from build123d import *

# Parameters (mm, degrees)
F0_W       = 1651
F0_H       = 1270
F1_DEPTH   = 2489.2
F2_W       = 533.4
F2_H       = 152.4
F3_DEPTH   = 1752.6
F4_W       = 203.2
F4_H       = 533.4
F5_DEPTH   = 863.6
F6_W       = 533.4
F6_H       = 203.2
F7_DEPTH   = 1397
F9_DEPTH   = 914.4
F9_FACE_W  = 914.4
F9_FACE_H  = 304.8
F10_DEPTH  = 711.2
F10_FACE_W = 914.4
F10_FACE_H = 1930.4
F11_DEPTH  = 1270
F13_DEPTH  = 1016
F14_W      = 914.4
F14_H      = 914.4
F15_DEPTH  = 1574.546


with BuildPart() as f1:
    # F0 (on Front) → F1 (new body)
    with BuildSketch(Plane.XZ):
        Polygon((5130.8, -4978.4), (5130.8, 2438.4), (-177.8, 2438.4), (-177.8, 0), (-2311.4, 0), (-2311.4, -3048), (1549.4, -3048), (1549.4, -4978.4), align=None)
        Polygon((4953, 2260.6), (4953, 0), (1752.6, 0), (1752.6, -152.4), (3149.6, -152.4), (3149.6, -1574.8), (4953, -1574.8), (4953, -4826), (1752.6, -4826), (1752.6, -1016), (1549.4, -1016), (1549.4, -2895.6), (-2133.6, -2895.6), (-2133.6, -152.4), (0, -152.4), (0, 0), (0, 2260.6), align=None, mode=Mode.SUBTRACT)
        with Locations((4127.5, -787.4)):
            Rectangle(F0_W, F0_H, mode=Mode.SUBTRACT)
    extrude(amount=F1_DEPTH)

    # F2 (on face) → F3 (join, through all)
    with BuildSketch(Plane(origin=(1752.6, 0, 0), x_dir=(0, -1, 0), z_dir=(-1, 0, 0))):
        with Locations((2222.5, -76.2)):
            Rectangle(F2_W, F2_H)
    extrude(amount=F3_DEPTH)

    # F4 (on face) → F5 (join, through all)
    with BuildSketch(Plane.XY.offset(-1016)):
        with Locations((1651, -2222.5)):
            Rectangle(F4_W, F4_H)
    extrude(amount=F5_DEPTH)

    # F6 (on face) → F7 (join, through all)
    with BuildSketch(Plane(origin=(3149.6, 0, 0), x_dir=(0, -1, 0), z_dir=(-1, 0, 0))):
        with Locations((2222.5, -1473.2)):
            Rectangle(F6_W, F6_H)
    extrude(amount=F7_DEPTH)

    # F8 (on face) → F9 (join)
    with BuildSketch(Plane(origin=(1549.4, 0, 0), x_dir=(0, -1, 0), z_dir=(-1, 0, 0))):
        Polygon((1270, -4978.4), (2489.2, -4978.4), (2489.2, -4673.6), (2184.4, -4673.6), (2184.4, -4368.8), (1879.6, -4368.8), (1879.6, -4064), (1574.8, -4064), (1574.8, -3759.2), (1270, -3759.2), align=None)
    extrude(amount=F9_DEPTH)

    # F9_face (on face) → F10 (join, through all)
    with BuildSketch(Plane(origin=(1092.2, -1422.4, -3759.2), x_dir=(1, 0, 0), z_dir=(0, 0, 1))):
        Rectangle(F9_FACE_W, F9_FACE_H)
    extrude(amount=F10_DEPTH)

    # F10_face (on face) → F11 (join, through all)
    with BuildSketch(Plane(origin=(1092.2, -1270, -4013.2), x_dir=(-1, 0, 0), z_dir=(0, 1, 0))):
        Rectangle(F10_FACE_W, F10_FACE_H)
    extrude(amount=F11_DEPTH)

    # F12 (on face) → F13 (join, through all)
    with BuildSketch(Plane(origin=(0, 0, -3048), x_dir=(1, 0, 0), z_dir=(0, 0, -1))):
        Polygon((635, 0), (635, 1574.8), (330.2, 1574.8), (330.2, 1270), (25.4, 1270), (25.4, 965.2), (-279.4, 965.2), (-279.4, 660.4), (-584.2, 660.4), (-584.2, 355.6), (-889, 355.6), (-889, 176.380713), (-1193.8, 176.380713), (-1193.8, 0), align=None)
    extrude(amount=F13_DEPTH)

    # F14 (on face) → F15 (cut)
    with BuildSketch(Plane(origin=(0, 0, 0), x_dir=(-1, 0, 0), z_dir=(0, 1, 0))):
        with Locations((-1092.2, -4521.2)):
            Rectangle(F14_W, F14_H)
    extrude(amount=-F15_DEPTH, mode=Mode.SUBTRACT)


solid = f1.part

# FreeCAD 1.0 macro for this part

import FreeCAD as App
import Part
import Sketcher
Q = App.Units.Quantity


def add_polygon(sketch, points):
    """Adds a closed chain of lines whose ends are joined by coincident constraints."""
    first, n = sketch.GeometryCount, len(points)
    for a, b in zip(points, points[1:] + points[:1]):
        sketch.addGeometry(Part.LineSegment(App.Vector(*a, 0), App.Vector(*b, 0)), False)
    for i in range(n):
        sketch.addConstraint(Sketcher.Constraint("Coincident", first + i, 2, first + (i + 1) % n, 1))

doc = App.newDocument("Part")
params = doc.addObject("Spreadsheet::Sheet", "Params")
for row, (alias, value) in enumerate([
    ("sketch1_width", "209 in"),
    ("sketch1_width2", "84 in"),
    ("sketch1_width3", "152 in"),
    ("sketch1_width4", "195 in"),
    ("sketch1_width5", "126 in"),
    ("pad1_length", "98 in"),
    ("sketch2_width", "21 in"),
    ("sketch2_height", "6 in"),
    ("sketch3_width", "8 in"),
    ("sketch3_height", "21 in"),
    ("pad3_length", "34 in"),
    ("sketch4_width", "21 in"),
    ("sketch4_height", "8 in"),
    ("pad4_length", "55 in"),
    ("sketch5_width", "48 in"),
    ("pad5_length", "36 in"),
    ("sketch6_width", "36 in"),
    ("sketch6_height", "12 in"),
    ("pad6_length", "28 in"),
    ("sketch7_width", "36 in"),
    ("sketch7_height", "76 in"),
    ("pad7_length", "50 in"),
    ("sketch8_width", "12 in"),
    ("sketch8_height", "62 in"),
    ("pad8_length", "40 in"),
    ("sketch9_width", "36 in"),
    ("pocket1_length", "61.99 in"),
], start=1):
    params.set(f"A{row}", alias)
    params.set(f"B{row}", "=" + value)
    params.setAlias(f"B{row}", alias)

body = doc.addObject("PartDesign::Body", "Body")

# Sketch on XZ plane
sketch1 = doc.addObject("Sketcher::SketchObject", "Sketch")
body.addObject(sketch1)
sketch1.AttachmentSupport = (doc.XZ_Plane, [""])
sketch1.MapMode = "FlatFace"
add_polygon(sketch1, [(5131, -4978), (5131, 2438), (-178, 2438), (-178, 0), (-2311, 0), (-2311, -3048), (1549, -3048), (1549, -4978)])  # lines 0-7
add_polygon(sketch1, [(0, 2261), (4953, 2261), (4953, 0), (1753, 0), (1753, -152), (3150, -152), (3150, -1575), (4953, -1575), (4953, -4826), (1753, -4826), (1753, -1016), (1549, -1016), (1549, -2896), (-2134, -2896), (-2134, -152), (0, -152)])  # lines 8-23
add_polygon(sketch1, [(4953, -1422), (3302, -1422), (3302, -152), (4953, -152)])  # lines 24-27
sketch1.addConstraint([
    Sketcher.Constraint("Vertical", 0),
    Sketcher.Constraint("Horizontal", 1),
    Sketcher.Constraint("Vertical", 2),
    Sketcher.Constraint("Horizontal", 3),
    Sketcher.Constraint("Vertical", 4),
    Sketcher.Constraint("Horizontal", 5),
    Sketcher.Constraint("Vertical", 6),
    Sketcher.Constraint("Horizontal", 7),
    Sketcher.Constraint("Horizontal", 8),
    Sketcher.Constraint("Vertical", 9),
    Sketcher.Constraint("Horizontal", 10),
    Sketcher.Constraint("Vertical", 11),
    Sketcher.Constraint("Horizontal", 12),
    Sketcher.Constraint("Vertical", 13),
    Sketcher.Constraint("Horizontal", 14),
    Sketcher.Constraint("Vertical", 15),
    Sketcher.Constraint("Horizontal", 16),
    Sketcher.Constraint("Vertical", 17),
    Sketcher.Constraint("Horizontal", 18),
    Sketcher.Constraint("Vertical", 19),
    Sketcher.Constraint("Horizontal", 20),
    Sketcher.Constraint("Vertical", 21),
    Sketcher.Constraint("Horizontal", 22),
    Sketcher.Constraint("Vertical", 23),
    Sketcher.Constraint("Horizontal", 24),
    Sketcher.Constraint("Vertical", 25),
    Sketcher.Constraint("Horizontal", 26),
    Sketcher.Constraint("Vertical", 27),
    Sketcher.Constraint("PointOnObject", 2, 2, -1),
    Sketcher.Constraint("PointOnObject", 9, 2, -1),
    Sketcher.Constraint("PointOnObject", 22, 2, -2),
    Sketcher.Constraint("Horizontal", 12, 2, 21, 2),
    Sketcher.Constraint("Horizontal", 22, 2, 25, 2),
    Sketcher.Constraint("Vertical", 9, 2, 14, 2),
    Sketcher.Constraint("Vertical", 11, 2, 16, 2),
    Sketcher.Constraint("Vertical", 6, 2, 18, 2),
    Sketcher.Constraint("Vertical", 15, 2, 26, 2),
    Sketcher.Constraint("Equal", 3, 22),
    Sketcher.Constraint("DistanceX", 1, 2, 1, 1, Q("209 in")),
    Sketcher.Constraint("DistanceX", 3, 2, 3, 1, Q("84 in")),
    Sketcher.Constraint("DistanceX", 5, 1, 5, 2, Q("152 in")),
    Sketcher.Constraint("DistanceX", 8, 1, 8, 2, Q("195 in")),
    Sketcher.Constraint("DistanceX", 10, 2, 10, 1, Q("126 in")),
    Sketcher.Constraint("DistanceX", 12, 1, 12, 2, Q("55 in")),
    Sketcher.Constraint("DistanceX", 18, 2, 18, 1, Q("8 in")),
    Sketcher.Constraint("DistanceX", 24, 2, 24, 1, Q("65 in")),
    Sketcher.Constraint("DistanceY", 0, 1, 0, 2, Q("292 in")),
    Sketcher.Constraint("DistanceY", 2, 2, 2, 1, Q("96 in")),
    Sketcher.Constraint("DistanceY", 4, 2, 4, 1, Q("120 in")),
    Sketcher.Constraint("DistanceY", 9, 2, 9, 1, Q("89 in")),
    Sketcher.Constraint("DistanceY", 11, 2, 11, 1, Q("6 in")),
    Sketcher.Constraint("DistanceY", 13, 2, 13, 1, Q("56 in")),
    Sketcher.Constraint("DistanceY", 15, 2, 15, 1, Q("128 in")),
    Sketcher.Constraint("DistanceY", 17, 1, 17, 2, Q("150 in")),
    Sketcher.Constraint("DistanceY", 19, 2, 19, 1, Q("74 in")),
    Sketcher.Constraint("DistanceY", 25, 1, 25, 2, Q("50 in")),
])
sketch1.setExpression("Constraints[66]", "Params.sketch1_width")
sketch1.setExpression("Constraints[67]", "Params.sketch1_width2")
sketch1.setExpression("Constraints[68]", "Params.sketch1_width3")
sketch1.setExpression("Constraints[69]", "Params.sketch1_width4")
sketch1.setExpression("Constraints[70]", "Params.sketch1_width5")
pad1 = doc.addObject("PartDesign::Pad", "Pad")
body.addObject(pad1)
pad1.Profile = sketch1
pad1.setExpression("Length", "Params.pad1_length")

# Sketch on YZ plane
sketch2 = doc.addObject("Sketcher::SketchObject", "Sketch001")
body.addObject(sketch2)
sketch2.AttachmentSupport = (doc.YZ_Plane, [""])
sketch2.MapMode = "FlatFace"
sketch2.AttachmentOffset = App.Placement(App.Vector(0, 0, 69 * 25.4), App.Rotation())
add_polygon(sketch2, [(-1956, 0), (-1956, -152), (-2489, -152), (-2489, 0)])  # lines 0-3
sketch2.addConstraint([
    Sketcher.Constraint("Vertical", 0),
    Sketcher.Constraint("Horizontal", 1),
    Sketcher.Constraint("Vertical", 2),
    Sketcher.Constraint("Horizontal", 3),
    Sketcher.Constraint("PointOnObject", 2, 2, -1),
    Sketcher.Constraint("DistanceX", 1, 2, 1, 1, Q("21 in")),
    Sketcher.Constraint("DistanceY", 0, 2, 0, 1, Q("6 in")),
    Sketcher.Constraint("DistanceX", 0, 2, -1, 1, Q("77 in")),
])
sketch2.setExpression("Constraints[9]", "Params.sketch2_width")
sketch2.setExpression("Constraints[10]", "Params.sketch2_height")
pad2 = doc.addObject("PartDesign::Pad", "Pad001")
body.addObject(pad2)
pad2.Profile = sketch2
pad2.Type = "UpToLast"
pad2.Reversed = True

# Sketch on XY plane
sketch3 = doc.addObject("Sketcher::SketchObject", "Sketch002")
body.addObject(sketch3)
sketch3.AttachmentSupport = (doc.XY_Plane, [""])
sketch3.MapMode = "FlatFace"
sketch3.AttachmentOffset = App.Placement(App.Vector(0, 0, -40 * 25.4), App.Rotation())
add_polygon(sketch3, [(1549, -1956), (1549, -2489), (1753, -2489), (1753, -1956)])  # lines 0-3
sketch3.addConstraint([
    Sketcher.Constraint("Vertical", 0),
    Sketcher.Constraint("Horizontal", 1),
    Sketcher.Constraint("Vertical", 2),
    Sketcher.Constraint("Horizontal", 3),
    Sketcher.Constraint("DistanceX", 1, 1, 1, 2, Q("8 in")),
    Sketcher.Constraint("DistanceY", 0, 2, 0, 1, Q("21 in")),
    Sketcher.Constraint("DistanceX", -1, 1, 0, 2, Q("61 in")),
    Sketcher.Constraint("DistanceY", 0, 2, -1, 1, Q("98 in")),
])
sketch3.setExpression("Constraints[8]", "Params.sketch3_width")
sketch3.setExpression("Constraints[9]", "Params.sketch3_height")
pad3 = doc.addObject("PartDesign::Pad", "Pad002")
body.addObject(pad3)
pad3.Profile = sketch3
pad3.setExpression("Length", "Params.pad3_length")

# Sketch on YZ plane
sketch4 = doc.addObject("Sketcher::SketchObject", "Sketch003")
body.addObject(sketch4)
sketch4.AttachmentSupport = (doc.YZ_Plane, [""])
sketch4.MapMode = "FlatFace"
sketch4.AttachmentOffset = App.Placement(App.Vector(0, 0, 124 * 25.4), App.Rotation())
add_polygon(sketch4, [(-1956, -1372), (-1956, -1575), (-2489, -1575), (-2489, -1372)])  # lines 0-3
sketch4.addConstraint([
    Sketcher.Constraint("Vertical", 0),
    Sketcher.Constraint("Horizontal", 1),
    Sketcher.Constraint("Vertical", 2),
    Sketcher.Constraint("Horizontal", 3),
    Sketcher.Constraint("DistanceX", 1, 2, 1, 1, Q("21 in")),
    Sketcher.Constraint("DistanceY", 0, 2, 0, 1, Q("8 in")),
    Sketcher.Constraint("DistanceX", 0, 2, -1, 1, Q("77 in")),
    Sketcher.Constraint("DistanceY", 0, 2, -1, 1, Q("62 in")),
])
sketch4.setExpression("Constraints[8]", "Params.sketch4_width")
sketch4.setExpression("Constraints[9]", "Params.sketch4_height")
pad4 = doc.addObject("PartDesign::Pad", "Pad003")
body.addObject(pad4)
pad4.Profile = sketch4
pad4.setExpression("Length", "Params.pad4_length")
pad4.Reversed = True

# Sketch on YZ plane
sketch5 = doc.addObject("Sketcher::SketchObject", "Sketch004")
body.addObject(sketch5)
sketch5.AttachmentSupport = (doc.YZ_Plane, [""])
sketch5.MapMode = "FlatFace"
sketch5.AttachmentOffset = App.Placement(App.Vector(0, 0, 61 * 25.4), App.Rotation())
add_polygon(sketch5, [(-1270, -4978), (-2489, -4978), (-2489, -4674), (-2184, -4674), (-2184, -4369), (-1880, -4369), (-1880, -4064), (-1575, -4064), (-1575, -3759), (-1270, -3759)])  # lines 0-9
sketch5.addConstraint([
    Sketcher.Constraint("Horizontal", 0),
    Sketcher.Constraint("Vertical", 1),
    Sketcher.Constraint("Horizontal", 2),
    Sketcher.Constraint("Vertical", 3),
    Sketcher.Constraint("Horizontal", 4),
    Sketcher.Constraint("Vertical", 5),
    Sketcher.Constraint("Horizontal", 6),
    Sketcher.Constraint("Vertical", 7),
    Sketcher.Constraint("Horizontal", 8),
    Sketcher.Constraint("Vertical", 9),
    Sketcher.Constraint("Equal", 2, 4),
    Sketcher.Constraint("Equal", 4, 6),
    Sketcher.Constraint("Equal", 6, 8),
    Sketcher.Constraint("Equal", 8, 1),
    Sketcher.Constraint("Equal", 1, 3),
    Sketcher.Constraint("Equal", 3, 5),
    Sketcher.Constraint("Equal", 5, 7),
    Sketcher.Constraint("DistanceX", 0, 2, 0, 1, Q("48 in")),
    Sketcher.Constraint("DistanceX", 0, 2, -1, 1, Q("98 in")),
    Sketcher.Constraint("DistanceY", 0, 2, -1, 1, Q("196 in")),
])
sketch5.setExpression("Constraints[27]", "Params.sketch5_width")
pad5 = doc.addObject("PartDesign::Pad", "Pad004")
body.addObject(pad5)
pad5.Profile = sketch5
pad5.setExpression("Length", "Params.pad5_length")
pad5.Reversed = True

# Sketch on XY plane
sketch6 = doc.addObject("Sketcher::SketchObject", "Sketch005")
body.addObject(sketch6)
sketch6.AttachmentSupport = (doc.XY_Plane, [""])
sketch6.MapMode = "FlatFace"
sketch6.AttachmentOffset = App.Placement(App.Vector(0, 0, -148 * 25.4), App.Rotation())
add_polygon(sketch6, [(635, -1270), (635, -1575), (1549, -1575), (1549, -1270)])  # lines 0-3
sketch6.addConstraint([
    Sketcher.Constraint("Vertical", 0),
    Sketcher.Constraint("Horizontal", 1),
    Sketcher.Constraint("Vertical", 2),
    Sketcher.Constraint("Horizontal", 3),
    Sketcher.Constraint("DistanceX", 1, 1, 1, 2, Q("36 in")),
    Sketcher.Constraint("DistanceY", 0, 2, 0, 1, Q("12 in")),
    Sketcher.Constraint("DistanceX", -1, 1, 0, 2, Q("25 in")),
    Sketcher.Constraint("DistanceY", 0, 2, -1, 1, Q("62 in")),
])
sketch6.setExpression("Constraints[8]", "Params.sketch6_width")
sketch6.setExpression("Constraints[9]", "Params.sketch6_height")
pad6 = doc.addObject("PartDesign::Pad", "Pad005")
body.addObject(pad6)
pad6.Profile = sketch6
pad6.setExpression("Length", "Params.pad6_length")

# Sketch on XZ plane
sketch7 = doc.addObject("Sketcher::SketchObject", "Sketch006")
body.addObject(sketch7)
sketch7.AttachmentSupport = (doc.XZ_Plane, [""])
sketch7.MapMode = "FlatFace"
sketch7.AttachmentOffset = App.Placement(App.Vector(0, 0, 50 * 25.4), App.Rotation())
add_polygon(sketch7, [(1549, -3048), (1549, -4978), (635, -4978), (635, -3048)])  # lines 0-3
sketch7.addConstraint([
    Sketcher.Constraint("Vertical", 0),
    Sketcher.Constraint("Horizontal", 1),
    Sketcher.Constraint("Vertical", 2),
    Sketcher.Constraint("Horizontal", 3),
    Sketcher.Constraint("DistanceX", 1, 2, 1, 1, Q("36 in")),
    Sketcher.Constraint("DistanceY", 0, 2, 0, 1, Q("76 in")),
    Sketcher.Constraint("DistanceX", -1, 1, 0, 2, Q("61 in")),
    Sketcher.Constraint("DistanceY", 0, 2, -1, 1, Q("196 in")),
])
sketch7.setExpression("Constraints[8]", "Params.sketch7_width")
sketch7.setExpression("Constraints[9]", "Params.sketch7_height")
pad7 = doc.addObject("PartDesign::Pad", "Pad006")
body.addObject(pad7)
pad7.Profile = sketch7
pad7.setExpression("Length", "Params.pad7_length")
pad7.Reversed = True

# Sketch on XY plane
sketch8 = doc.addObject("Sketcher::SketchObject", "Sketch007")
body.addObject(sketch8)
sketch8.AttachmentSupport = (doc.XY_Plane, [""])
sketch8.MapMode = "FlatFace"
sketch8.AttachmentOffset = App.Placement(App.Vector(0, 0, -120 * 25.4), App.Rotation())
add_polygon(sketch8, [(635, 0), (635, -1575), (330, -1575), (330, -1270), (25, -1270), (25, -965), (-279, -965), (-279, -660), (-584, -660), (-584, -356), (-889, -356), (-889, -176), (-1194, -176), (-1194, 0)])  # lines 0-13
sketch8.addConstraint([
    Sketcher.Constraint("Vertical", 0),
    Sketcher.Constraint("Horizontal", 1),
    Sketcher.Constraint("Vertical", 2),
    Sketcher.Constraint("Horizontal", 3),
    Sketcher.Constraint("Vertical", 4),
    Sketcher.Constraint("Horizontal", 5),
    Sketcher.Constraint("Vertical", 6),
    Sketcher.Constraint("Horizontal", 7),
    Sketcher.Constraint("Vertical", 8),
    Sketcher.Constraint("Horizontal", 9),
    Sketcher.Constraint("Vertical", 10),
    Sketcher.Constraint("Horizontal", 11),
    Sketcher.Constraint("Vertical", 12),
    Sketcher.Constraint("Horizontal", 13),
    Sketcher.Constraint("PointOnObject", 12, 2, -1),
    Sketcher.Constraint("Equal", 1, 3),
    Sketcher.Constraint("Equal", 3, 5),
    Sketcher.Constraint("Equal", 5, 7),
    Sketcher.Constraint("Equal", 7, 9),
    Sketcher.Constraint("Equal", 9, 11),
    Sketcher.Constraint("Equal", 11, 2),
    Sketcher.Constraint("Equal", 2, 4),
    Sketcher.Constraint("Equal", 4, 6),
    Sketcher.Constraint("Equal", 6, 8),
    Sketcher.Constraint("DistanceX", 1, 2, 1, 1, Q("12 in")),
    Sketcher.Constraint("DistanceY", 0, 2, 0, 1, Q("62 in")),
    Sketcher.Constraint("DistanceX", -1, 1, 0, 2, Q("25 in")),
    Sketcher.Constraint("DistanceY", 10, 1, 10, 2, 179.219287),
])
sketch8.setExpression("Constraints[38]", "Params.sketch8_width")
sketch8.setExpression("Constraints[39]", "Params.sketch8_height")
pad8 = doc.addObject("PartDesign::Pad", "Pad007")
body.addObject(pad8)
pad8.Profile = sketch8
pad8.setExpression("Length", "Params.pad8_length")
pad8.Reversed = True

# Sketch on XZ plane
sketch9 = doc.addObject("Sketcher::SketchObject", "Sketch008")
body.addObject(sketch9)
sketch9.AttachmentSupport = (doc.XZ_Plane, [""])
sketch9.MapMode = "FlatFace"
add_polygon(sketch9, [(1549, -4064), (1549, -4978), (635, -4978), (635, -4064)])  # lines 0-3
sketch9.addConstraint([
    Sketcher.Constraint("Vertical", 0),
    Sketcher.Constraint("Horizontal", 1),
    Sketcher.Constraint("Vertical", 2),
    Sketcher.Constraint("Horizontal", 3),
    Sketcher.Constraint("Equal", 3, 0),
    Sketcher.Constraint("DistanceX", 1, 2, 1, 1, Q("36 in")),
    Sketcher.Constraint("DistanceX", -1, 1, 0, 2, Q("61 in")),
    Sketcher.Constraint("DistanceY", 0, 2, -1, 1, Q("196 in")),
])
sketch9.setExpression("Constraints[9]", "Params.sketch9_width")
pocket1 = doc.addObject("PartDesign::Pocket", "Pocket")
body.addObject(pocket1)
pocket1.Profile = sketch9
pocket1.setExpression("Length", "Params.pocket1_length")
pocket1.Reversed = True

doc.recompute()
